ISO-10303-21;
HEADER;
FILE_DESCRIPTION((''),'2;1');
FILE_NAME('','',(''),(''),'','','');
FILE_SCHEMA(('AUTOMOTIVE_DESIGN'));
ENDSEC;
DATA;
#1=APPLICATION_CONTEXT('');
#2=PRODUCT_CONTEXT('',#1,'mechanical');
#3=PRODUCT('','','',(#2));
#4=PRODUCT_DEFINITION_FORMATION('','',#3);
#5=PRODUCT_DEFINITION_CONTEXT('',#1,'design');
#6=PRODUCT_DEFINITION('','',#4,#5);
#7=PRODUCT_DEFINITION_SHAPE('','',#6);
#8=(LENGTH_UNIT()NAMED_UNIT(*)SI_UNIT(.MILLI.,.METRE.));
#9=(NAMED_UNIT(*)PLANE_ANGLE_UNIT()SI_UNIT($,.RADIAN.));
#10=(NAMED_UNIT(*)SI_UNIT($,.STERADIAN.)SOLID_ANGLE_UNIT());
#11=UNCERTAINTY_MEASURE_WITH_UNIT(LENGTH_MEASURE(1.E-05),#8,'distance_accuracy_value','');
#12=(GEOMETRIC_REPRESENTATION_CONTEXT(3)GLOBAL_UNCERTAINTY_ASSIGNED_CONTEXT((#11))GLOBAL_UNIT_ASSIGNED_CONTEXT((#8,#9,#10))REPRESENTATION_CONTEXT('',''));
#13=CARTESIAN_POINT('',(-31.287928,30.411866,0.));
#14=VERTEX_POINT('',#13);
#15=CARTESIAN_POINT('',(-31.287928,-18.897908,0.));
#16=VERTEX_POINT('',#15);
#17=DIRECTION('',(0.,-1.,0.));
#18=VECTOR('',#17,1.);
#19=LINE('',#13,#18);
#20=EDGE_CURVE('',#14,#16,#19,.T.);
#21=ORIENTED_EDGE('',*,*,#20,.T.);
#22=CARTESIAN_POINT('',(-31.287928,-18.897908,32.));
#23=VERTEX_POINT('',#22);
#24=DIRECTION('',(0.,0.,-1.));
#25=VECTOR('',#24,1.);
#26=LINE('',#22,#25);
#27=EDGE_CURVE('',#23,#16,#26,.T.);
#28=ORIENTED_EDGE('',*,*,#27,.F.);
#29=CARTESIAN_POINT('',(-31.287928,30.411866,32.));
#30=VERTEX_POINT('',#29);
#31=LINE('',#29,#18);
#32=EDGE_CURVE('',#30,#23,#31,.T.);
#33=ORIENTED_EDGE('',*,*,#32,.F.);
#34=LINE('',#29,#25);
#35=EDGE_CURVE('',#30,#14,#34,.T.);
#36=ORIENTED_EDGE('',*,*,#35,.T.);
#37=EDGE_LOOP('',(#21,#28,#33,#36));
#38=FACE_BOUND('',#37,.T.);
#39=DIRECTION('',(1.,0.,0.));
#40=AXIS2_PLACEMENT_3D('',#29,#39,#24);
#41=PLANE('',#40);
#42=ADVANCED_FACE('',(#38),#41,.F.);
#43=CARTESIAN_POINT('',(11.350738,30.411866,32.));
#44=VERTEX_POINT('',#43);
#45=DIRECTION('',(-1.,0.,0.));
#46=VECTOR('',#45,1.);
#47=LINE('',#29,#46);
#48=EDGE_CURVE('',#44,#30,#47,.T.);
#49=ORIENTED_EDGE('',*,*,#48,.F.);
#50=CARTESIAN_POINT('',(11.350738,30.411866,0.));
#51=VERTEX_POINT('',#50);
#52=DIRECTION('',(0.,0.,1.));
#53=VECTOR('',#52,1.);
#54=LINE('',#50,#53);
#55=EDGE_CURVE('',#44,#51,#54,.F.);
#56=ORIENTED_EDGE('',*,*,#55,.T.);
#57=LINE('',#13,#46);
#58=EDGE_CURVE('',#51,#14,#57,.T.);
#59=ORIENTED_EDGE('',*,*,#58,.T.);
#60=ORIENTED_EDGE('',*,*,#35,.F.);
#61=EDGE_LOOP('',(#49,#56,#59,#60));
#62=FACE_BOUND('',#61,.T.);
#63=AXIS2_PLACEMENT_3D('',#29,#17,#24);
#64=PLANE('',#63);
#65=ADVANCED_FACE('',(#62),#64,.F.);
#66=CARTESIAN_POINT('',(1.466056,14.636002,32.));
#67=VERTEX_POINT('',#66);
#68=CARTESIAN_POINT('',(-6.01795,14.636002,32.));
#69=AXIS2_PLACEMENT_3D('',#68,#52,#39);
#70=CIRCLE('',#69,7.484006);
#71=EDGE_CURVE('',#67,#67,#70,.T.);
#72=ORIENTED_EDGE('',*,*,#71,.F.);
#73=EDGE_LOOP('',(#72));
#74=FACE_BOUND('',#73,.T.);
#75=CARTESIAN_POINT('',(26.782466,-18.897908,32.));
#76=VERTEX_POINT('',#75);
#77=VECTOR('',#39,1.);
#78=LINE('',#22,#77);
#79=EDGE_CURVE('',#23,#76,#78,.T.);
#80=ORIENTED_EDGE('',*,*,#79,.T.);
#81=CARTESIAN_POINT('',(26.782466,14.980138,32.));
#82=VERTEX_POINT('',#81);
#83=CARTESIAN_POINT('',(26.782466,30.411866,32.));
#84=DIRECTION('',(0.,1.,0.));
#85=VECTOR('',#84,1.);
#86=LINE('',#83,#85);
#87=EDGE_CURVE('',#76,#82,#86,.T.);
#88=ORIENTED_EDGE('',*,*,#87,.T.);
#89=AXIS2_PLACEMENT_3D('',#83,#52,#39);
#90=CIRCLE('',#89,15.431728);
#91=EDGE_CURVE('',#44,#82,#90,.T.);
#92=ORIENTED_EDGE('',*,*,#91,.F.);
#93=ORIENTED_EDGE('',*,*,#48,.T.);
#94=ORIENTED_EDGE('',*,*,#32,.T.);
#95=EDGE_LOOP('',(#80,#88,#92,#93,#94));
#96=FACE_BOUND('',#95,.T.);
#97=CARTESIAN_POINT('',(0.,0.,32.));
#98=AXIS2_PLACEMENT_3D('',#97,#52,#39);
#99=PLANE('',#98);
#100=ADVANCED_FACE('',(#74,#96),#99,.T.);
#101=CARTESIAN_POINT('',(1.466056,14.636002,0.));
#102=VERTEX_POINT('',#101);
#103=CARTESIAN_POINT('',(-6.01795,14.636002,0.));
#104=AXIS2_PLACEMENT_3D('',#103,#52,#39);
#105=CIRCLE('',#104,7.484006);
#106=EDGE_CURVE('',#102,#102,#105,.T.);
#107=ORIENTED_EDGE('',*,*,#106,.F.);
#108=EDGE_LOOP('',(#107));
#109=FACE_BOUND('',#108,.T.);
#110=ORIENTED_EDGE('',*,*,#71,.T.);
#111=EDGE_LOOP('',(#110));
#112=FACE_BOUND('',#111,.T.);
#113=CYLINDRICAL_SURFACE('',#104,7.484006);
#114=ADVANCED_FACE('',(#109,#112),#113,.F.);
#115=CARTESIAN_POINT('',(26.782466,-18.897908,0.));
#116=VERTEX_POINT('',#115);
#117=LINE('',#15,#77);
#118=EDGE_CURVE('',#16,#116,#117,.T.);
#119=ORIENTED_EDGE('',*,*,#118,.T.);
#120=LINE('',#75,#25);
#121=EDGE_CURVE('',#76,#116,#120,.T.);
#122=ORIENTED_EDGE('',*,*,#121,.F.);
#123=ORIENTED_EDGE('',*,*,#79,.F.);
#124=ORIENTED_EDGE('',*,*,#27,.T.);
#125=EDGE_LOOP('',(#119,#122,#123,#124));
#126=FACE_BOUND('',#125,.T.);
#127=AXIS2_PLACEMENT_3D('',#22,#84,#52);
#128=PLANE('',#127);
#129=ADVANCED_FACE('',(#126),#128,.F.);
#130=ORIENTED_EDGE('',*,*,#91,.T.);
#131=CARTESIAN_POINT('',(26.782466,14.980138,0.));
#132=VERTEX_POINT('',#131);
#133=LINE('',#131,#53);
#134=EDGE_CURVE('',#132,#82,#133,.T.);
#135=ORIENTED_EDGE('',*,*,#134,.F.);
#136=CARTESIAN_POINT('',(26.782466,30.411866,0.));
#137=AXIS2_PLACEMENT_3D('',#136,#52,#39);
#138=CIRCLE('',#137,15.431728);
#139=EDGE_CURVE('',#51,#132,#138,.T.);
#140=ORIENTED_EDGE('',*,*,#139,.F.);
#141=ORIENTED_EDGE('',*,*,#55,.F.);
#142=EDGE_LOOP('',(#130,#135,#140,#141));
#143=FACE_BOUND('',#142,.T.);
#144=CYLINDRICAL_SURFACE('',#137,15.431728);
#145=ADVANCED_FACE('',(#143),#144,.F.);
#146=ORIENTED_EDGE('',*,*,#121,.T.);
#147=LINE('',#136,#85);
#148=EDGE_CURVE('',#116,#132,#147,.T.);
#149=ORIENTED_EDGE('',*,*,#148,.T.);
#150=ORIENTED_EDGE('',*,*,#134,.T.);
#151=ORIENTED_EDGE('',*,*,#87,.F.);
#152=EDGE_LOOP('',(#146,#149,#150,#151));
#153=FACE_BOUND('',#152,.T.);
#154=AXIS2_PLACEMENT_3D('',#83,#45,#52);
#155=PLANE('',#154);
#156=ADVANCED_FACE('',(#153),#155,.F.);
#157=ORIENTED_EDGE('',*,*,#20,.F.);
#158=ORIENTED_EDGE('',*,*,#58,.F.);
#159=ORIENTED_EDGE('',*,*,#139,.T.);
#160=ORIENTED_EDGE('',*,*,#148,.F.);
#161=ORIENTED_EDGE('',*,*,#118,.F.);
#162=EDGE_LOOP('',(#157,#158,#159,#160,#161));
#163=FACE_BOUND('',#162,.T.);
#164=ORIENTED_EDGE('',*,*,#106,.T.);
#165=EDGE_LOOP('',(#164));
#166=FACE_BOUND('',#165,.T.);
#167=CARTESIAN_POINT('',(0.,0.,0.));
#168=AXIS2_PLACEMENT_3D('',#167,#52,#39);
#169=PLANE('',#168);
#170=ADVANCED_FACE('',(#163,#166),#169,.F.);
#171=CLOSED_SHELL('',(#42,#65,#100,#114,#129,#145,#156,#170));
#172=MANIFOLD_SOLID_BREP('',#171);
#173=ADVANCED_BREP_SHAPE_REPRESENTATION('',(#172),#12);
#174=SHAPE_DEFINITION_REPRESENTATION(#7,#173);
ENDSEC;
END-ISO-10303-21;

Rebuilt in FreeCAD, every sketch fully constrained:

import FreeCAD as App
import Part
import Sketcher

V = App.Vector
Q = App.Units.Quantity


def add_polygon(sketch, points):
    """Adds a closed chain of lines whose ends are joined by coincident constraints."""
    first, n = sketch.GeometryCount, len(points)
    for a, b in zip(points, points[1:] + points[:1]):
        sketch.addGeometry(Part.LineSegment(App.Vector(*a, 0), App.Vector(*b, 0)), False)
    for i in range(n):
        sketch.addConstraint(Sketcher.Constraint("Coincident", first + i, 2, first + (i + 1) % n, 1))

doc = App.newDocument("Part")
params = doc.addObject("Spreadsheet::Sheet", "Params")
for row, (alias, value) in enumerate([
    ("pad1_length", "32 mm"),
    ("pocket1_length", "32 mm"),
], start=1):
    params.set(f"A{row}", alias)
    params.set(f"B{row}", "=" + value)
    params.setAlias(f"B{row}", alias)

body = doc.addObject("PartDesign::Body", "Body")

# Sketch on XY plane
sketch1 = doc.addObject("Sketcher::SketchObject", "Sketch")
body.addObject(sketch1)
sketch1.AttachmentSupport = (doc.XY_Plane, [""])
sketch1.MapMode = "FlatFace"
add_polygon(sketch1, [(-31.287928, 30.411866), (-31.287928, -18.897908), (26.782466, -18.897908), (26.782466, 30.411866)])  # lines 0-3
sketch1.addConstraint([
    Sketcher.Constraint("Vertical", 0),
    Sketcher.Constraint("Horizontal", 1),
    Sketcher.Constraint("Vertical", 2),
    Sketcher.Constraint("Horizontal", 3),
    Sketcher.Constraint("DistanceX", 1, 1, 1, 2, Q("58.070394 mm")),
    Sketcher.Constraint("DistanceY", 0, 2, 0, 1, Q("49.309774 mm")),
    Sketcher.Constraint("DistanceY", 0, 2, -1, 1, Q("18.897908 mm")),
    Sketcher.Constraint("DistanceX", 0, 2, -1, 1, Q("31.287928 mm")),
])
pad1 = doc.addObject("PartDesign::Pad", "Pad")
body.addObject(pad1)
pad1.Profile = sketch1
pad1.setExpression("Length", "Params.pad1_length")

# Sketch on XY plane
sketch2 = doc.addObject("Sketcher::SketchObject", "Sketch001")
body.addObject(sketch2)
sketch2.AttachmentSupport = (doc.XY_Plane, [""])
sketch2.MapMode = "FlatFace"
sketch2.AttachmentOffset = App.Placement(V(0, 0, 32), App.Rotation())
sketch2.addGeometry([
    Part.Circle(V(-6.01795, 14.636002, 0), V(0, 0, 1), 7.484006),
    Part.Circle(V(26.782466, 30.411866, 0), V(0, 0, 1), 15.431728),
], False)
sketch2.addConstraint([
    Sketcher.Constraint("Diameter", 0, Q("14.968012 mm")),
    Sketcher.Constraint("Diameter", 1, Q("30.863456 mm")),
    Sketcher.Constraint("DistanceY", -1, 1, 0, 3, Q("14.636002 mm")),
    Sketcher.Constraint("DistanceX", 0, 3, -1, 1, Q("6.01795 mm")),
    Sketcher.Constraint("DistanceX", -1, 1, 1, 3, Q("26.782466 mm")),
    Sketcher.Constraint("DistanceY", -1, 1, 1, 3, Q("30.411866 mm")),
])
pocket1 = doc.addObject("PartDesign::Pocket", "Pocket")
body.addObject(pocket1)
pocket1.Profile = sketch2
pocket1.setExpression("Length", "Params.pocket1_length")

doc.recompute()
